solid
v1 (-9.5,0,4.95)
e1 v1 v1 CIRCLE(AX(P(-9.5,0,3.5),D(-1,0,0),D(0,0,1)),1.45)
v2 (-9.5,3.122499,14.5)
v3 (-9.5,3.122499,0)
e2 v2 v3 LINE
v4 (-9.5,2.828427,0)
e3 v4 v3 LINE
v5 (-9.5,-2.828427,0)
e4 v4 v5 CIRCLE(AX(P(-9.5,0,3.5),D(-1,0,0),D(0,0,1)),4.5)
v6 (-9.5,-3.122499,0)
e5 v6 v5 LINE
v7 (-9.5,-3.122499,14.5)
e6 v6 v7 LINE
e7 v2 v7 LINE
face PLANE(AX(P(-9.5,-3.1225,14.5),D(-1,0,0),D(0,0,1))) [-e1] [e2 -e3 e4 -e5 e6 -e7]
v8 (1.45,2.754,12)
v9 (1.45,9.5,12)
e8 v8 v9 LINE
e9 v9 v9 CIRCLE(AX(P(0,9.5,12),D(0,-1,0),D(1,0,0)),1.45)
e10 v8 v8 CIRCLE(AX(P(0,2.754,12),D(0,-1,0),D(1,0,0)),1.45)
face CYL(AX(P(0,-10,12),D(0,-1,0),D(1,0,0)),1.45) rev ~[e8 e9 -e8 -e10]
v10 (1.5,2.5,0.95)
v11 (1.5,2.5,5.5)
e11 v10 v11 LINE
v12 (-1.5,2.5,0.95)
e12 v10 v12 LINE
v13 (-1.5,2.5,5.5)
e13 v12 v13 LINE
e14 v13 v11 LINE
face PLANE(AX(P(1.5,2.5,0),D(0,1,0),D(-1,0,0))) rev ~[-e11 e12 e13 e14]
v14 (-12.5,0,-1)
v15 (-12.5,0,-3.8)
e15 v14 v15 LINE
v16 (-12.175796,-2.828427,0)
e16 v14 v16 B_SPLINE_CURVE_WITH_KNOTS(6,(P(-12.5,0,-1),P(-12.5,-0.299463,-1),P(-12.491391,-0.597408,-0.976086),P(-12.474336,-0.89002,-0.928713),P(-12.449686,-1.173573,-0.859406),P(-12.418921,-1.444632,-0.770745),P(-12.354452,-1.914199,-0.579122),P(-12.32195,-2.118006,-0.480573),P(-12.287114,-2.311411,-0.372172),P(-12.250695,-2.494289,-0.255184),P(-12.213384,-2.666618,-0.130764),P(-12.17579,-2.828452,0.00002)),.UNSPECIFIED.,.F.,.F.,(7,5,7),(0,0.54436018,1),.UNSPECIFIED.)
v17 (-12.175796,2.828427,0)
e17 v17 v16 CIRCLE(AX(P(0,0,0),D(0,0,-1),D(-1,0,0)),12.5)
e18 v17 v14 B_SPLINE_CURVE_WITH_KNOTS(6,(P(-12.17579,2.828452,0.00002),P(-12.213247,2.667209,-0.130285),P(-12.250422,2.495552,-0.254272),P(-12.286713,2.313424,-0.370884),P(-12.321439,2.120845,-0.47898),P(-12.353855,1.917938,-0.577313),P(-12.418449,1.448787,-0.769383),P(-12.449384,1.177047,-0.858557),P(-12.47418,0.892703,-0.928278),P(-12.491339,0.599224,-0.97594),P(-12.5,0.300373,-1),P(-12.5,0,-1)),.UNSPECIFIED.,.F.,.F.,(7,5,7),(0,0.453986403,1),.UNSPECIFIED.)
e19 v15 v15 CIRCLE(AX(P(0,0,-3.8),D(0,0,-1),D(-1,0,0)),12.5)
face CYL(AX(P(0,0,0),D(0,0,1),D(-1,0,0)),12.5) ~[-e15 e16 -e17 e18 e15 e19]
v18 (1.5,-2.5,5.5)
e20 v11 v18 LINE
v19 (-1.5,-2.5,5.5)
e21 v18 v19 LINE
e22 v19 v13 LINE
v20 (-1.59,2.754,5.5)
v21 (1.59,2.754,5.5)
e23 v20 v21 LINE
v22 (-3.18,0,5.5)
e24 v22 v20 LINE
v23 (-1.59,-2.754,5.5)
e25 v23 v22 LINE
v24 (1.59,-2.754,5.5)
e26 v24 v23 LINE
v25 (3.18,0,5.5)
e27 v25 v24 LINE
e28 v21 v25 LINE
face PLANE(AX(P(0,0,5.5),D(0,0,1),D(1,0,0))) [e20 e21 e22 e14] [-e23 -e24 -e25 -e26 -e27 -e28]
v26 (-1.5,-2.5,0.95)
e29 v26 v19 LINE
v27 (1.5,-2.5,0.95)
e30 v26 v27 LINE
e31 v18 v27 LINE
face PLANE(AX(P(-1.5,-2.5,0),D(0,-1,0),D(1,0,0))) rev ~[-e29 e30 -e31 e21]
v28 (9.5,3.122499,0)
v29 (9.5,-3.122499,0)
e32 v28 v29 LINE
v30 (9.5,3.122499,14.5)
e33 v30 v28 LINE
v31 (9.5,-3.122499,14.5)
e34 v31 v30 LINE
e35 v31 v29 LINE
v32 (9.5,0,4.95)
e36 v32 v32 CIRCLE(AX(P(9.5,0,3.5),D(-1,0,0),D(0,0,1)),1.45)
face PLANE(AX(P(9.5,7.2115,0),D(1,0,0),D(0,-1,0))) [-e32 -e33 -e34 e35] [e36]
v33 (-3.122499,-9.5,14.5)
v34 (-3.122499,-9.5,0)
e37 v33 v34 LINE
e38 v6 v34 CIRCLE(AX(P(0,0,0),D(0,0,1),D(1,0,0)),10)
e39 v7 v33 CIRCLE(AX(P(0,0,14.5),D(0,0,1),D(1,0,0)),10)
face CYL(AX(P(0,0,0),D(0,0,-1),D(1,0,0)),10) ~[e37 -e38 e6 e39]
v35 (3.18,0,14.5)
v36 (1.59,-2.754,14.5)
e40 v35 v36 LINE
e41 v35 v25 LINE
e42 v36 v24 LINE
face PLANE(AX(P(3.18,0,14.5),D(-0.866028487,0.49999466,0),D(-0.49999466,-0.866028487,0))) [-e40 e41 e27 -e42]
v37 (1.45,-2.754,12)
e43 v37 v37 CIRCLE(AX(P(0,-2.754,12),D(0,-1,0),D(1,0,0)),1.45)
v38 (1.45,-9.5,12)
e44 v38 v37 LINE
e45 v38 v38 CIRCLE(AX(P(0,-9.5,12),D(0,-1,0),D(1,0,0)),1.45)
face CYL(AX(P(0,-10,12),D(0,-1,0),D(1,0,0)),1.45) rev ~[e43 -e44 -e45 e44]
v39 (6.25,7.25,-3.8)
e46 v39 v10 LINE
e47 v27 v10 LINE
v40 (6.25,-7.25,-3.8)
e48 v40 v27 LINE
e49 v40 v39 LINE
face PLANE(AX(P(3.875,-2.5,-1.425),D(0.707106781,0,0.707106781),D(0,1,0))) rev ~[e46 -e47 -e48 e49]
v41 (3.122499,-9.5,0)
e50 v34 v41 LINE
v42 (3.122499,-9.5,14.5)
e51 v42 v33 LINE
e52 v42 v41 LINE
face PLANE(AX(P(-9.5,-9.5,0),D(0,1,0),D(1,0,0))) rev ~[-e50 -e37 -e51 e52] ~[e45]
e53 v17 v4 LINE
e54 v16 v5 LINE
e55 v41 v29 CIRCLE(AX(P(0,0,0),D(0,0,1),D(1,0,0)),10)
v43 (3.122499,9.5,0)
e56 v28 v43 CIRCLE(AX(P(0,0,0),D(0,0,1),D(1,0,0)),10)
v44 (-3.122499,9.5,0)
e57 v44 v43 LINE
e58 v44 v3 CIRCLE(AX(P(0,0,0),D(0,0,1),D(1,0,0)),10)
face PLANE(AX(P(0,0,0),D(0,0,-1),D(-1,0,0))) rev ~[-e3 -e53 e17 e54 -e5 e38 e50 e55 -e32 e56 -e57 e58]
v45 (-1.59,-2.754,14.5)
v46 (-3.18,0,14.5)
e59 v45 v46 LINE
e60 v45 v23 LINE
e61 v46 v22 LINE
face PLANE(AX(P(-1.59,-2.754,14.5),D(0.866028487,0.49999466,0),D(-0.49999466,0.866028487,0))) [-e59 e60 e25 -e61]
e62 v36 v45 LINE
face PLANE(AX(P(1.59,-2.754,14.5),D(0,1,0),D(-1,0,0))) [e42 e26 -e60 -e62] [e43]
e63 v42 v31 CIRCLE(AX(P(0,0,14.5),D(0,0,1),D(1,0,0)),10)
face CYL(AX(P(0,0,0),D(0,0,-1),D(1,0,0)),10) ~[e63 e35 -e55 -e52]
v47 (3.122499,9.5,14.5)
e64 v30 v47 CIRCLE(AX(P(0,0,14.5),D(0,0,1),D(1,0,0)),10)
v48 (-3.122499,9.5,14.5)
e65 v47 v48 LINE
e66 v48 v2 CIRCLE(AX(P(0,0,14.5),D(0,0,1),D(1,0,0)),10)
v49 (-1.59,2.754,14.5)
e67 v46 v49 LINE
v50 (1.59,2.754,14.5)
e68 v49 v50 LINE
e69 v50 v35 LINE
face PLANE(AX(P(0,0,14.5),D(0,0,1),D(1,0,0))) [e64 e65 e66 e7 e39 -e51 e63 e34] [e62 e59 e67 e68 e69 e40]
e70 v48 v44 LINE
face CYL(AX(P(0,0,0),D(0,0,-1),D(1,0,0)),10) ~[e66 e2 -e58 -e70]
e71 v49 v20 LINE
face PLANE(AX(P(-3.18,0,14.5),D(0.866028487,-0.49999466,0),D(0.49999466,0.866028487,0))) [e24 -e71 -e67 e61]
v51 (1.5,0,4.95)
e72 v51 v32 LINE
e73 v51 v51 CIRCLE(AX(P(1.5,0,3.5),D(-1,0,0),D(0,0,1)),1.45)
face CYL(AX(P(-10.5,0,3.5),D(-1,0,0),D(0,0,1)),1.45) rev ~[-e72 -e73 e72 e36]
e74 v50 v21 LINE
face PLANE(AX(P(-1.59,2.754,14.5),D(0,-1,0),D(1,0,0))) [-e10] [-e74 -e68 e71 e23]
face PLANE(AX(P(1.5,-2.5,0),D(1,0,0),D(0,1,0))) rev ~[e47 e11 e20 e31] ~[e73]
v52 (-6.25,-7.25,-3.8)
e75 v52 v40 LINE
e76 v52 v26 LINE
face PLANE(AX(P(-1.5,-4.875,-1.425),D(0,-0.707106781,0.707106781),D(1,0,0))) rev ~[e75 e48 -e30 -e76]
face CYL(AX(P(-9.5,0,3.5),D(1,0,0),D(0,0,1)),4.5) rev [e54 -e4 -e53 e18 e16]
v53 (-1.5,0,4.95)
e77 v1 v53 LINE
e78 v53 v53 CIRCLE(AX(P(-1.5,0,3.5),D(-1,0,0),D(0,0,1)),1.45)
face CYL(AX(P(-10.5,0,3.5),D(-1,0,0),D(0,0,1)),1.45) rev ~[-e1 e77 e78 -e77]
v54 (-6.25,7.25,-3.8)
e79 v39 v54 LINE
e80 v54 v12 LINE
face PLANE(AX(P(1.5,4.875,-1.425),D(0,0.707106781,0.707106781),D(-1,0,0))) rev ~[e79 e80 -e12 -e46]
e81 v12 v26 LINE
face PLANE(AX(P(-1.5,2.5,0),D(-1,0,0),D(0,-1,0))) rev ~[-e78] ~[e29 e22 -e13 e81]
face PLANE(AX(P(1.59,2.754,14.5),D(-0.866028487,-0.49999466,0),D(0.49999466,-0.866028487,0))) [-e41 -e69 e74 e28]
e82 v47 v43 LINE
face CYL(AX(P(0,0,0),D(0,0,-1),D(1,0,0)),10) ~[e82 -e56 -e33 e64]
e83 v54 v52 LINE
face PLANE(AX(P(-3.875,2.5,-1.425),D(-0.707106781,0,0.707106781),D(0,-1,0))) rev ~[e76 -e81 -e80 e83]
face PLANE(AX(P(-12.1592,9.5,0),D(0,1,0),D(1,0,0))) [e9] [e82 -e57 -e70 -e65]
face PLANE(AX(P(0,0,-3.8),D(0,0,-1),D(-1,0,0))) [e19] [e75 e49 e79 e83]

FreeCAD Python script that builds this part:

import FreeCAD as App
import Part
import Sketcher


def edges_at(feature, points):
    """Names of the edges that pass closest to the given points."""
    edges = feature.Shape.Edges
    near = lambda p: min(range(len(edges)), key=lambda i: edges[i].distToShape(Part.Vertex(*p))[0])
    return sorted({f"Edge{near(p) + 1}" for p in points})


def add_polygon(sketch, points):
    """Adds a closed chain of lines whose ends are joined by coincident constraints."""
    first, n = sketch.GeometryCount, len(points)
    for a, b in zip(points, points[1:] + points[:1]):
        sketch.addGeometry(Part.LineSegment(App.Vector(*a, 0), App.Vector(*b, 0)), False)
    for i in range(n):
        sketch.addConstraint(Sketcher.Constraint("Coincident", first + i, 2, first + (i + 1) % n, 1))

doc = App.newDocument("Part")
body = doc.addObject("PartDesign::Body", "Body")

# Sketch on XY plane
sketch1 = doc.addObject("Sketcher::SketchObject", "Sketch")
body.addObject(sketch1)
sketch1.AttachmentSupport = (doc.XY_Plane, [""])
sketch1.MapMode = "FlatFace"
sketch1.addGeometry(Part.Circle(App.Vector(0, 0, 0), App.Vector(0, 0, 1), 10), False)
sketch1.addConstraint(Sketcher.Constraint("Coincident", 0, 3, -1, 1))
sketch1.addConstraint(Sketcher.Constraint("Diameter", 0, 20.0))
pad1 = doc.addObject("PartDesign::Pad", "Pad")
body.addObject(pad1)
pad1.Profile = sketch1
pad1.Length = 14.5

# Sketch on XY plane
sketch2 = doc.addObject("Sketcher::SketchObject", "Sketch001")
body.addObject(sketch2)
sketch2.AttachmentSupport = (doc.XY_Plane, [""])
sketch2.MapMode = "FlatFace"
add_polygon(sketch2, [(1.5, 2.5), (1.5, -2.5), (-1.5, -2.5), (-1.5, 2.5)])  # lines 0-3
sketch2.addConstraint(Sketcher.Constraint("Vertical", 0))
sketch2.addConstraint(Sketcher.Constraint("Horizontal", 1))
sketch2.addConstraint(Sketcher.Constraint("Vertical", 2))
sketch2.addConstraint(Sketcher.Constraint("Horizontal", 3))
sketch2.addConstraint(Sketcher.Constraint("Symmetric", 0, 2, 2, 2, -1, 1))
sketch2.addConstraint(Sketcher.Constraint("DistanceX", 1, 2, 1, 1, 3.0))
sketch2.addConstraint(Sketcher.Constraint("DistanceY", 0, 2, 0, 1, 5.0))
pocket1 = doc.addObject("PartDesign::Pocket", "Pocket")
body.addObject(pocket1)
pocket1.Profile = sketch2
pocket1.Length = 10
pocket1.Reversed = True

# Sketch on XY plane
sketch3 = doc.addObject("Sketcher::SketchObject", "Sketch002")
body.addObject(sketch3)
sketch3.AttachmentSupport = (doc.XY_Plane, [""])
sketch3.MapMode = "FlatFace"
sketch3.AttachmentOffset = App.Placement(App.Vector(0, 0, 14.5), App.Rotation())
add_polygon(sketch3, [(3.2, 0), (1.6, 2.8), (-1.6, 2.8), (-3.2, 0), (-1.6, -2.8), (1.6, -2.8)])  # lines 0-5
sketch3.addConstraint(Sketcher.Constraint("Horizontal", 1))
sketch3.addConstraint(Sketcher.Constraint("Horizontal", 4))
sketch3.addConstraint(Sketcher.Constraint("Symmetric", 0, 2, 3, 2, -1, 1))
sketch3.addConstraint(Sketcher.Constraint("Symmetric", 2, 2, 5, 2, -1, 1))
sketch3.addConstraint(Sketcher.Constraint("PointOnObject", 2, 2, -1))
sketch3.addConstraint(Sketcher.Constraint("Parallel", 2, 5))
sketch3.addConstraint(Sketcher.Constraint("Vertical", 1, 2, 3, 2))
sketch3.addConstraint(Sketcher.Constraint("DistanceX", 1, 2, 1, 1, 3.18))
sketch3.addConstraint(Sketcher.Constraint("Distance", 0, 3.18))
sketch3.addConstraint(Sketcher.Constraint("DistanceX", 2, 2, -1, 1, 3.18))
pocket2 = doc.addObject("PartDesign::Pocket", "Pocket001")
body.addObject(pocket2)
pocket2.Profile = sketch3
pocket2.Length = 9

# Sketch on XZ plane
sketch4 = doc.addObject("Sketcher::SketchObject", "Sketch003")
body.addObject(sketch4)
sketch4.AttachmentSupport = (doc.XZ_Plane, [""])
sketch4.MapMode = "FlatFace"
sketch4.AttachmentOffset = App.Placement(App.Vector(0, 0, 10), App.Rotation())
sketch4.addGeometry(Part.Circle(App.Vector(0, 12, 0), App.Vector(0, 0, 1), 1.4), False)
sketch4.addConstraint(Sketcher.Constraint("PointOnObject", 0, 3, -2))
sketch4.addConstraint(Sketcher.Constraint("Diameter", 0, 2.9))
sketch4.addConstraint(Sketcher.Constraint("DistanceY", -1, 1, 0, 3, 12.0))
pocket3 = doc.addObject("PartDesign::Pocket", "Pocket002")
body.addObject(pocket3)
pocket3.Profile = sketch4
pocket3.Type = "ThroughAll"

# Sketch on YZ plane
sketch5 = doc.addObject("Sketcher::SketchObject", "Sketch004")
body.addObject(sketch5)
sketch5.AttachmentSupport = (doc.YZ_Plane, [""])
sketch5.MapMode = "FlatFace"
sketch5.AttachmentOffset = App.Placement(App.Vector(0, 0, -10.5), App.Rotation())
sketch5.addGeometry(Part.Circle(App.Vector(0, 3.5, 0), App.Vector(0, 0, 1), 1.4), False)
sketch5.addConstraint(Sketcher.Constraint("PointOnObject", 0, 3, -2))
sketch5.addConstraint(Sketcher.Constraint("Diameter", 0, 2.9))
sketch5.addConstraint(Sketcher.Constraint("DistanceY", -1, 1, 0, 3, 3.5))
pocket4 = doc.addObject("PartDesign::Pocket", "Pocket003")
body.addObject(pocket4)
pocket4.Profile = sketch5
pocket4.Length = 22
pocket4.Reversed = True

# Sketch on XY plane
sketch6 = doc.addObject("Sketcher::SketchObject", "Sketch005")
body.addObject(sketch6)
sketch6.AttachmentSupport = (doc.XY_Plane, [""])
sketch6.MapMode = "FlatFace"
add_polygon(sketch6, [(9.5, 7.2), (13.5, 7.2), (13.5, -8.6), (9.5, -8.6)])  # lines 0-3
add_polygon(sketch6, [(-14.5, 9.3), (-9.5, 9.3), (-9.5, -9.5), (12.7, -9.5), (12.7, -13.5), (-12.2, -13.5), (-12.2, -11.2), (-14.5, -11.2)])  # lines 4-11
add_polygon(sketch6, [(-12.2, 13.5), (14.4, 13.5), (14.4, 9.5), (-12.2, 9.5)])  # lines 12-15
sketch6.addConstraint(Sketcher.Constraint("Horizontal", 0))
sketch6.addConstraint(Sketcher.Constraint("Vertical", 1))
sketch6.addConstraint(Sketcher.Constraint("Horizontal", 2))
sketch6.addConstraint(Sketcher.Constraint("Vertical", 3))
sketch6.addConstraint(Sketcher.Constraint("Horizontal", 4))
sketch6.addConstraint(Sketcher.Constraint("Vertical", 5))
sketch6.addConstraint(Sketcher.Constraint("Horizontal", 6))
sketch6.addConstraint(Sketcher.Constraint("Vertical", 7))
sketch6.addConstraint(Sketcher.Constraint("Horizontal", 8))
sketch6.addConstraint(Sketcher.Constraint("Vertical", 9))
sketch6.addConstraint(Sketcher.Constraint("Horizontal", 10))
sketch6.addConstraint(Sketcher.Constraint("Vertical", 11))
sketch6.addConstraint(Sketcher.Constraint("Horizontal", 12))
sketch6.addConstraint(Sketcher.Constraint("Vertical", 13))
sketch6.addConstraint(Sketcher.Constraint("Horizontal", 14))
sketch6.addConstraint(Sketcher.Constraint("Vertical", 15))
sketch6.addConstraint(Sketcher.Constraint("Symmetric", 8, 2, 15, 2, -1))
sketch6.addConstraint(Sketcher.Constraint("Equal", 2, 7))
sketch6.addConstraint(Sketcher.Constraint("Equal", 7, 13))
sketch6.addConstraint(Sketcher.Constraint("DistanceX", 0, 1, 0, 2, 4.0))
sketch6.addConstraint(Sketcher.Constraint("DistanceX", 4, 1, 4, 2, 5.0))
sketch6.addConstraint(Sketcher.Constraint("DistanceX", 4, 2, 3, 2, 19.0))
sketch6.addConstraint(Sketcher.Constraint("DistanceY", 6, 2, 12, 2, 23.0))
sketch6.addConstraint(Sketcher.Constraint("DistanceX", -1, 1, 0, 2, 13.5))
sketch6.addConstraint(Sketcher.Constraint("DistanceY", 5, 2, 5, 1, 18.812))
sketch6.addConstraint(Sketcher.Constraint("DistanceY", 9, 1, 9, 2, 2.321))
sketch6.addConstraint(Sketcher.Constraint("DistanceX", 6, 1, 6, 2, 22.2193))
sketch6.addConstraint(Sketcher.Constraint("DistanceX", 8, 2, 8, 1, 24.8785))
sketch6.addConstraint(Sketcher.Constraint("DistanceX", 12, 1, 12, 2, 26.6056))
sketch6.addConstraint(Sketcher.Constraint("DistanceY", 1, 2, 1, 1, 15.8233))
sketch6.addConstraint(Sketcher.Constraint("DistanceY", -1, 1, 0, 2, 7.2115))
pocket5 = doc.addObject("PartDesign::Pocket", "Pocket004")
body.addObject(pocket5)
pocket5.Profile = sketch6
pocket5.Type = "ThroughAll"
pocket5.Reversed = True

# Sketch on XY plane
sketch7 = doc.addObject("Sketcher::SketchObject", "Sketch006")
body.addObject(sketch7)
sketch7.AttachmentSupport = (doc.XY_Plane, [""])
sketch7.MapMode = "FlatFace"
sketch7.addGeometry(Part.Circle(App.Vector(0, 0, 0), App.Vector(0, 0, 1), 12.5), False)  # 0
add_polygon(sketch7, [(-1.5, -2.5), (1.5, -2.5), (1.5, 2.5), (-1.5, 2.5)])  # lines 1-4
sketch7.addConstraint(Sketcher.Constraint("Horizontal", 1))
sketch7.addConstraint(Sketcher.Constraint("Vertical", 2))
sketch7.addConstraint(Sketcher.Constraint("Horizontal", 3))
sketch7.addConstraint(Sketcher.Constraint("Vertical", 4))
sketch7.addConstraint(Sketcher.Constraint("Coincident", 0, 3, -1, 1))
sketch7.addConstraint(Sketcher.Constraint("Symmetric", 1, 2, 3, 2, -1, 1))
sketch7.addConstraint(Sketcher.Constraint("Diameter", 0, 25.0))
sketch7.addConstraint(Sketcher.Constraint("DistanceX", 1, 1, 1, 2, 3.0))
sketch7.addConstraint(Sketcher.Constraint("DistanceY", 2, 1, 2, 2, 5.0))
pad2 = doc.addObject("PartDesign::Pad", "Pad001")
body.addObject(pad2)
pad2.Profile = sketch7
pad2.Length = 3.8
pad2.Reversed = True
doc.recompute()

chamfer = doc.addObject("PartDesign::Chamfer", "Chamfer")
body.addObject(chamfer)
chamfer.Base = (pad2, edges_at(pad2, [
    (1.5, 0, -3.8),
    (0, 2.5, -3.8),
    (0, -2.5, -3.8),
    (-1.5, 0, -3.8),
]))
chamfer.Size = 4.75

# Sketch on YZ plane
sketch8 = doc.addObject("Sketcher::SketchObject", "Sketch007")
body.addObject(sketch8)
sketch8.AttachmentSupport = (doc.YZ_Plane, [""])
sketch8.MapMode = "FlatFace"
sketch8.AttachmentOffset = App.Placement(App.Vector(0, 0, -9.5), App.Rotation())
sketch8.addGeometry(Part.Circle(App.Vector(0, 3.5, 0), App.Vector(0, 0, 1), 4.5), False)
sketch8.addConstraint(Sketcher.Constraint("PointOnObject", 0, 3, -2))
sketch8.addConstraint(Sketcher.Constraint("Diameter", 0, 9.0))
sketch8.addConstraint(Sketcher.Constraint("DistanceY", -1, 1, 0, 3, 3.5))
pocket6 = doc.addObject("PartDesign::Pocket", "Pocket005")
body.addObject(pocket6)
pocket6.Profile = sketch8
pocket6.Length = 5

doc.recompute()
